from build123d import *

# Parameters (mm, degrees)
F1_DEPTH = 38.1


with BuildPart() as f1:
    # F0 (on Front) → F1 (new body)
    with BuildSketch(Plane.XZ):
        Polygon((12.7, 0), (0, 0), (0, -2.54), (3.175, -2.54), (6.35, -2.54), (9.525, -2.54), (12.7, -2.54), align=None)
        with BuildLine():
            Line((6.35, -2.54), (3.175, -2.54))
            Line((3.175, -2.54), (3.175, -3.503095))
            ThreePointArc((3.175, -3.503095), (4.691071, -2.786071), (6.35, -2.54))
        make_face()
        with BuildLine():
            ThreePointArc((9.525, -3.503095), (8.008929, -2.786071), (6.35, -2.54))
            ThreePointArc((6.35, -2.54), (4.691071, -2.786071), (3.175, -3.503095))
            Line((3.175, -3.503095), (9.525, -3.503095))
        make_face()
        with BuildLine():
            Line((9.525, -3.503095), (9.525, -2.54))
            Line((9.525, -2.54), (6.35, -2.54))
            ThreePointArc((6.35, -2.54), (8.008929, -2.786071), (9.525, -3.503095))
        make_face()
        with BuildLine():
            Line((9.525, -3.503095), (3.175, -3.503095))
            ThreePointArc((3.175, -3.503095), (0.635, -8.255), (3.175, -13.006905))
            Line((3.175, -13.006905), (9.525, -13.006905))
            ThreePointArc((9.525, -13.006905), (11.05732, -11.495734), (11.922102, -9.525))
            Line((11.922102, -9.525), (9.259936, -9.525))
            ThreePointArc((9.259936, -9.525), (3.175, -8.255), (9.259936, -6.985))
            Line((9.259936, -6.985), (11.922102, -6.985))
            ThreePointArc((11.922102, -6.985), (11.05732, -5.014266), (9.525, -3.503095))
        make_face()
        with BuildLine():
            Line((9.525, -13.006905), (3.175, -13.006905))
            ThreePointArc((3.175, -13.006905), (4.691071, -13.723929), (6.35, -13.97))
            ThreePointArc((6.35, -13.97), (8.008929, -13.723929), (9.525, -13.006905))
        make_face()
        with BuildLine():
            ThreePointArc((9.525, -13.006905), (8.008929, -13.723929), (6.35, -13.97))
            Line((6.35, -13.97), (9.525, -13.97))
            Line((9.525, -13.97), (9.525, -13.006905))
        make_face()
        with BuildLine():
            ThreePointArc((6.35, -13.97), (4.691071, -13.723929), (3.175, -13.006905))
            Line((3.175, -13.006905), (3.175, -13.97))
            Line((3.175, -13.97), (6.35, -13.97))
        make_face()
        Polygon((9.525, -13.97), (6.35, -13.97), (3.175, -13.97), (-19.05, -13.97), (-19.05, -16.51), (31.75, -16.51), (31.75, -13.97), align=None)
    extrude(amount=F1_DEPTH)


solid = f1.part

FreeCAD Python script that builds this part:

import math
import FreeCAD as App
import Part
import Sketcher

V = App.Vector
Q = App.Units.Quantity

doc = App.newDocument("Part")
params = doc.addObject("Spreadsheet::Sheet", "Params")
for row, (alias, value) in enumerate([
    ("sketch1_width", "2 in"),
    ("sketch1_width2", "0.5 in"),
    ("sketch1_height", "0.1 in"),
    ("sketch1_radius", "0.225 in"),
    ("sketch1_radius2", "0.125 in"),
    ("pad1_length", "1.5 in"),
], start=1):
    params.set(f"A{row}", alias)
    params.set(f"B{row}", "=" + value)
    params.setAlias(f"B{row}", alias)

body = doc.addObject("PartDesign::Body", "Body")

sketch1 = doc.addObject("Sketcher::SketchObject", "Sketch")
body.addObject(sketch1)
sketch1.AttachmentSupport = (doc.XZ_Plane, [""])
sketch1.MapMode = "FlatFace"
sketch1.addGeometry(Part.LineSegment(V(12.7, 0, 0), V(0, 0, 0)), False)
sketch1.addGeometry(Part.LineSegment(V(0, 0, 0), V(0, -2.54, 0)), False)
sketch1.addGeometry(Part.LineSegment(V(0, -2.54, 0), V(3.175, -2.54, 0)), False)
sketch1.addGeometry(Part.LineSegment(V(3.175, -2.54, 0), V(3.175, -3.503095, 0)), False)
sketch1.addGeometry(Part.ArcOfCircle(Part.Circle(V(6.35, -8.255, 0), V(0, 0, 1), 5.715), math.radians(123.74899), math.radians(236.25101)), False)
sketch1.addGeometry(Part.LineSegment(V(3.175, -13.006905, 0), V(3.175, -13.97, 0)), False)
sketch1.addGeometry(Part.LineSegment(V(3.175, -13.97, 0), V(-19.05, -13.97, 0)), False)
sketch1.addGeometry(Part.LineSegment(V(-19.05, -13.97, 0), V(-19.05, -16.51, 0)), False)
sketch1.addGeometry(Part.LineSegment(V(-19.05, -16.51, 0), V(31.75, -16.51, 0)), False)
sketch1.addGeometry(Part.LineSegment(V(31.75, -16.51, 0), V(31.75, -13.97, 0)), False)
sketch1.addGeometry(Part.LineSegment(V(31.75, -13.97, 0), V(9.525, -13.97, 0)), False)
sketch1.addGeometry(Part.LineSegment(V(9.525, -13.97, 0), V(9.525, -13.006905, 0)), False)
sketch1.addGeometry(Part.ArcOfCircle(Part.Circle(V(6.349995, -8.254997, 0), V(0, 0, 1), 5.715006), math.radians(-56.250983), math.radians(-12.839606)), False)
sketch1.addGeometry(Part.LineSegment(V(11.922102, -9.525, 0), V(9.259936, -9.525, 0)), False)
sketch1.addGeometry(Part.ArcOfCircle(Part.Circle(V(6.35, -8.255, 0), V(0, 0, 1), 3.175), math.radians(23.578177), math.radians(336.421823)), False)
sketch1.addGeometry(Part.LineSegment(V(9.259936, -6.985, 0), V(11.922102, -6.985, 0)), False)
sketch1.addGeometry(Part.ArcOfCircle(Part.Circle(V(6.349995, -8.255003, 0), V(0, 0, 1), 5.715006), math.radians(12.839606), math.radians(56.250983)), False)
sketch1.addGeometry(Part.LineSegment(V(9.525, -3.503095, 0), V(9.525, -2.54, 0)), False)
sketch1.addGeometry(Part.LineSegment(V(9.525, -2.54, 0), V(12.7, -2.54, 0)), False)
sketch1.addGeometry(Part.LineSegment(V(12.7, -2.54, 0), V(12.7, 0, 0)), False)
sketch1.addConstraint(Sketcher.Constraint("Coincident", 0, 2, 1, 1))
sketch1.addConstraint(Sketcher.Constraint("Coincident", 1, 2, 2, 1))
sketch1.addConstraint(Sketcher.Constraint("Coincident", 2, 2, 3, 1))
sketch1.addConstraint(Sketcher.Constraint("Coincident", 3, 2, 4, 1))
sketch1.addConstraint(Sketcher.Constraint("Coincident", 4, 2, 5, 1))
sketch1.addConstraint(Sketcher.Constraint("Coincident", 5, 2, 6, 1))
sketch1.addConstraint(Sketcher.Constraint("Coincident", 6, 2, 7, 1))
sketch1.addConstraint(Sketcher.Constraint("Coincident", 7, 2, 8, 1))
sketch1.addConstraint(Sketcher.Constraint("Coincident", 8, 2, 9, 1))
sketch1.addConstraint(Sketcher.Constraint("Coincident", 9, 2, 10, 1))
sketch1.addConstraint(Sketcher.Constraint("Coincident", 10, 2, 11, 1))
sketch1.addConstraint(Sketcher.Constraint("Coincident", 11, 2, 12, 1))
sketch1.addConstraint(Sketcher.Constraint("Coincident", 12, 2, 13, 1))
sketch1.addConstraint(Sketcher.Constraint("Coincident", 13, 2, 14, 2))
sketch1.addConstraint(Sketcher.Constraint("Coincident", 14, 1, 15, 1))
sketch1.addConstraint(Sketcher.Constraint("Coincident", 15, 2, 16, 1))
sketch1.addConstraint(Sketcher.Constraint("Coincident", 16, 2, 17, 1))
sketch1.addConstraint(Sketcher.Constraint("Coincident", 17, 2, 18, 1))
sketch1.addConstraint(Sketcher.Constraint("Coincident", 18, 2, 19, 1))
sketch1.addConstraint(Sketcher.Constraint("Coincident", 19, 2, 0, 1))
sketch1.addConstraint(Sketcher.Constraint("Horizontal", 0))
sketch1.addConstraint(Sketcher.Constraint("Vertical", 1))
sketch1.addConstraint(Sketcher.Constraint("Horizontal", 2))
sketch1.addConstraint(Sketcher.Constraint("Vertical", 3))
sketch1.addConstraint(Sketcher.Constraint("Vertical", 5))
sketch1.addConstraint(Sketcher.Constraint("Horizontal", 6))
sketch1.addConstraint(Sketcher.Constraint("Vertical", 7))
sketch1.addConstraint(Sketcher.Constraint("Horizontal", 8))
sketch1.addConstraint(Sketcher.Constraint("Vertical", 9))
sketch1.addConstraint(Sketcher.Constraint("Horizontal", 10))
sketch1.addConstraint(Sketcher.Constraint("Vertical", 11))
sketch1.addConstraint(Sketcher.Constraint("Horizontal", 13))
sketch1.addConstraint(Sketcher.Constraint("Horizontal", 15))
sketch1.addConstraint(Sketcher.Constraint("Vertical", 17))
sketch1.addConstraint(Sketcher.Constraint("Horizontal", 18))
sketch1.addConstraint(Sketcher.Constraint("Vertical", 19))
sketch1.addConstraint(Sketcher.Constraint("Coincident", 0, 2, -1, 1))
sketch1.addConstraint(Sketcher.Constraint("Coincident", 12, 3, 4, 3))
sketch1.addConstraint(Sketcher.Constraint("Coincident", 14, 3, 4, 3))
sketch1.addConstraint(Sketcher.Constraint("Coincident", 16, 3, 4, 3))
sketch1.addConstraint(Sketcher.Constraint("Equal", 12, 16))
sketch1.addConstraint(Sketcher.Constraint("Horizontal", 6, 2, 9, 2))
sketch1.addConstraint(Sketcher.Constraint("Horizontal", 4, 2, 11, 2))
sketch1.addConstraint(Sketcher.Constraint("Horizontal", 3, 2, 16, 2))
sketch1.addConstraint(Sketcher.Constraint("Horizontal", 2, 2, 17, 2))
sketch1.addConstraint(Sketcher.Constraint("Vertical", 3, 2, 4, 2))
sketch1.addConstraint(Sketcher.Constraint("Vertical", 13, 2, 14, 1))
sketch1.addConstraint(Sketcher.Constraint("Equal", 6, 10))
sketch1.addConstraint(Sketcher.Constraint("Equal", 2, 18))
sketch1.addConstraint(Sketcher.Constraint("Equal", 3, 5))
sketch1.addConstraint(Sketcher.Constraint("Equal", 1, 7))
sketch1.addConstraint(Sketcher.Constraint("DistanceX", 8, 1, 8, 2, Q("2 in")))
sketch1.addConstraint(Sketcher.Constraint("DistanceX", 0, 2, 0, 1, Q("0.5 in")))
sketch1.addConstraint(Sketcher.Constraint("DistanceY", 1, 2, 1, 1, Q("0.1 in")))
sketch1.addConstraint(Sketcher.Constraint("Radius", 4, Q("0.225 in")))
sketch1.addConstraint(Sketcher.Constraint("Radius", 14, Q("0.125 in")))
sketch1.addConstraint(Sketcher.Constraint("DistanceX", 4, 3, 8, 2, Q("1 in")))
sketch1.addConstraint(Sketcher.Constraint("DistanceY", 13, 2, 14, 1, Q("0.1 in")))
sketch1.addConstraint(Sketcher.Constraint("DistanceX", 2, 1, 2, 2, Q("0.125 in")))
sketch1.addConstraint(Sketcher.Constraint("DistanceY", 5, 2, -1, 1, Q("0.55 in")))
sketch1.setExpression("Constraints[51]", "Params.sketch1_width")
sketch1.setExpression("Constraints[52]", "Params.sketch1_width2")
sketch1.setExpression("Constraints[53]", "Params.sketch1_height")
sketch1.setExpression("Constraints[54]", "Params.sketch1_radius")
sketch1.setExpression("Constraints[55]", "Params.sketch1_radius2")
pad1 = doc.addObject("PartDesign::Pad", "Pad")
body.addObject(pad1)
pad1.Profile = sketch1
pad1.setExpression("Length", "Params.pad1_length")

doc.recompute()
